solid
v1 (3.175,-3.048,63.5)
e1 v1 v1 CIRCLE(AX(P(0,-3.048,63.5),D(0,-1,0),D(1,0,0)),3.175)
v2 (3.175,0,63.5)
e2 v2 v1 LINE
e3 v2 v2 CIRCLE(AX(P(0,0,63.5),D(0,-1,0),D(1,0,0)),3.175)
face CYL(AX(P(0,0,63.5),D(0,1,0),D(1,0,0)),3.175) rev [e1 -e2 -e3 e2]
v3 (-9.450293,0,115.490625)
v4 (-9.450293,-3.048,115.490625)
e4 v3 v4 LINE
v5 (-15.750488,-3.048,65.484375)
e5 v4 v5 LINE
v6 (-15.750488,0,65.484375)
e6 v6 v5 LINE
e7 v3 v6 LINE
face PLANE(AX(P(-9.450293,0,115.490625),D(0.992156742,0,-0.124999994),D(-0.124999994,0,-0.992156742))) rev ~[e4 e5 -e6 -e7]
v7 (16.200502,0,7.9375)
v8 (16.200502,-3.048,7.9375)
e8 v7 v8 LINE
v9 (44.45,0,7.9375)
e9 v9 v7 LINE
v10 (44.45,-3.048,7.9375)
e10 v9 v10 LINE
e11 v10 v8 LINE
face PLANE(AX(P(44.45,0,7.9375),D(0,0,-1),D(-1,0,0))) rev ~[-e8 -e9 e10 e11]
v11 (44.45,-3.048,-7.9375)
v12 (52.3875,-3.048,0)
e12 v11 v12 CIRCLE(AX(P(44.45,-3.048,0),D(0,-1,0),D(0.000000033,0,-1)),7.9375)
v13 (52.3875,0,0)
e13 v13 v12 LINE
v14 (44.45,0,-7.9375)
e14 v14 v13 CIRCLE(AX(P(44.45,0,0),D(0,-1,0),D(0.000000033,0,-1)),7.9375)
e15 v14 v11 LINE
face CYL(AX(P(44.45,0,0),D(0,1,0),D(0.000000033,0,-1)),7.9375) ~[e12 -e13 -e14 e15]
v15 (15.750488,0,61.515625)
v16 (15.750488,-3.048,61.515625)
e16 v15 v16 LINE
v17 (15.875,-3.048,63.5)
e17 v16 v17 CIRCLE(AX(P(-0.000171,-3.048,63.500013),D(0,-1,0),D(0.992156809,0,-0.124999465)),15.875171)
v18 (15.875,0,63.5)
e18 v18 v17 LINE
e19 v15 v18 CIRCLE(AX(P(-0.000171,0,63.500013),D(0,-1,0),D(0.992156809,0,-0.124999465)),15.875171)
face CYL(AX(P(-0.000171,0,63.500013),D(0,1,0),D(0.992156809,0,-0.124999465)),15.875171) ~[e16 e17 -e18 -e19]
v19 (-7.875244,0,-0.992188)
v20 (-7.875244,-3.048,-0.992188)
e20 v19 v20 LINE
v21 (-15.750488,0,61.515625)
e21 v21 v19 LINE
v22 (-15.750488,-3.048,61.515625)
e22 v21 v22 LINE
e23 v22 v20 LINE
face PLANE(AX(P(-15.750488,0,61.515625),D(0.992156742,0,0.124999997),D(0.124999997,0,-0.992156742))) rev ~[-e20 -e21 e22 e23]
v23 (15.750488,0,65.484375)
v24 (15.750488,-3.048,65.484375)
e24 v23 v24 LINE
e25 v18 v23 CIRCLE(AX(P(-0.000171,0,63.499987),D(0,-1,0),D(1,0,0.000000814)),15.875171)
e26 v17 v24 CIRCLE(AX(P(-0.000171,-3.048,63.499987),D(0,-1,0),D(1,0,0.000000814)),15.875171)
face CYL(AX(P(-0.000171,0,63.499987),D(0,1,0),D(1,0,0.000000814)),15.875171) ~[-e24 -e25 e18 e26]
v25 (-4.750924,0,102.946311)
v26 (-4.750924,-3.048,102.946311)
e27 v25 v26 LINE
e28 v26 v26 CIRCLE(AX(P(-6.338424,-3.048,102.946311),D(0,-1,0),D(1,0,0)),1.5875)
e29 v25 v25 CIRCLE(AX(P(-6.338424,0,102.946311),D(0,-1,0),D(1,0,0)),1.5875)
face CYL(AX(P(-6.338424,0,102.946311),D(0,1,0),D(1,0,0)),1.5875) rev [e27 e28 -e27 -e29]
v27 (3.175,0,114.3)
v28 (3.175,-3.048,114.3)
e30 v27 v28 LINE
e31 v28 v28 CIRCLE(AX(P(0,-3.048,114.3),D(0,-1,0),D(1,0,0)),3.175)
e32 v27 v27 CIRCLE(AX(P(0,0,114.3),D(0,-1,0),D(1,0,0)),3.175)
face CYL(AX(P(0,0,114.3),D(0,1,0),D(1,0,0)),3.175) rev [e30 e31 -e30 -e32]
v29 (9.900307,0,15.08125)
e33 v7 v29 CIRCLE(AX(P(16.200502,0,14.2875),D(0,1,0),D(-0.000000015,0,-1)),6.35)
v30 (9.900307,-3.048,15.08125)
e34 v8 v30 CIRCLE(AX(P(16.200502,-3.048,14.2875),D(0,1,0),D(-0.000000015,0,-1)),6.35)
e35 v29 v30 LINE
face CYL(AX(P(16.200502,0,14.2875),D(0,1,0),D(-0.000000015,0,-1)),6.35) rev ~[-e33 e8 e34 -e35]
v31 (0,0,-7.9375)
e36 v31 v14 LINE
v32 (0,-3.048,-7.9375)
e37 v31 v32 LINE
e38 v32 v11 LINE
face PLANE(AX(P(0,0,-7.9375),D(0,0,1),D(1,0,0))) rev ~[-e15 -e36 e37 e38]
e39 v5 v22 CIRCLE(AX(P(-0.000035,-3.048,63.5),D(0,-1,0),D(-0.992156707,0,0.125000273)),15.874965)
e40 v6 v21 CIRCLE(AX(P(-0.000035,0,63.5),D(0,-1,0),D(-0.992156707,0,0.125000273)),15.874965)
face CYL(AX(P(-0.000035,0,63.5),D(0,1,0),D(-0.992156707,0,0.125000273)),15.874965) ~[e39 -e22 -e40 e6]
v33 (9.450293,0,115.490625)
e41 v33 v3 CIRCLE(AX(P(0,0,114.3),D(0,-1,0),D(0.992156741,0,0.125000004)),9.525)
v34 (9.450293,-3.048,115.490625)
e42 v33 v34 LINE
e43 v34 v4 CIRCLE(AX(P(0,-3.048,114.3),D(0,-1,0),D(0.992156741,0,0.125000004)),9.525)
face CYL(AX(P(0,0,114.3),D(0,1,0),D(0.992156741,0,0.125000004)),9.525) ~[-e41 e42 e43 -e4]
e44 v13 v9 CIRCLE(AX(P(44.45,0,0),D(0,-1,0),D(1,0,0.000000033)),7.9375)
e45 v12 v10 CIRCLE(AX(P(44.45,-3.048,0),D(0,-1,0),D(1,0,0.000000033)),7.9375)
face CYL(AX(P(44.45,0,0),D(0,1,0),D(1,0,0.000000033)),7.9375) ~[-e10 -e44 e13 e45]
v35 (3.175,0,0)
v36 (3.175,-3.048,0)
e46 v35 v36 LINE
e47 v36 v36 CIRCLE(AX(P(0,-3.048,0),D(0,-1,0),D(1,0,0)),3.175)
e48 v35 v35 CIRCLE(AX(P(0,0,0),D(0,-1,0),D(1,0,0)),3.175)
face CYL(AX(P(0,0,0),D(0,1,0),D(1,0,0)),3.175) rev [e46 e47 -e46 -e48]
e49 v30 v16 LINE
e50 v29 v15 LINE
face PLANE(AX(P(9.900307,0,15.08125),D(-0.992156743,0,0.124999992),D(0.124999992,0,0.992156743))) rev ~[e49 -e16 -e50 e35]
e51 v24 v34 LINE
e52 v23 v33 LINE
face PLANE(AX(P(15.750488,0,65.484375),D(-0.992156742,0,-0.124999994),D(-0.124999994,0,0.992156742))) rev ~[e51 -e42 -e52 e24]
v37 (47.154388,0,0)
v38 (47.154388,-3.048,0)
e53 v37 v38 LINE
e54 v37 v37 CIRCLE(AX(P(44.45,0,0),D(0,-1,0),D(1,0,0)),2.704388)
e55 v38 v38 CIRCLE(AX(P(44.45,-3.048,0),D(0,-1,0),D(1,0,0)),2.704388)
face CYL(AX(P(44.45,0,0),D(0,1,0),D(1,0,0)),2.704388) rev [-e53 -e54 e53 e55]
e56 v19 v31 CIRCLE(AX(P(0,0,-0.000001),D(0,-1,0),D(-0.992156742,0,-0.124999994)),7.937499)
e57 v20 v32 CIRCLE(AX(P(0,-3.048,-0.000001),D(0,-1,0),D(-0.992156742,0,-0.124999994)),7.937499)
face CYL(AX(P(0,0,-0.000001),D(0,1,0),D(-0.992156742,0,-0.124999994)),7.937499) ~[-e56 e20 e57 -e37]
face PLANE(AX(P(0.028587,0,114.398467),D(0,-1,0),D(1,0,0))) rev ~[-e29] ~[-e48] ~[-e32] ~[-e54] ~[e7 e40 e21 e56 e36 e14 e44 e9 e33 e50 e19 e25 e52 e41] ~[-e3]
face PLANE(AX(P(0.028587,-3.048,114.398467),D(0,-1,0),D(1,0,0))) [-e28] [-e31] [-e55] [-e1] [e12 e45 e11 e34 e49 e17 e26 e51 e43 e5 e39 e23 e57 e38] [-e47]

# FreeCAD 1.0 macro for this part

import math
import FreeCAD as App
import Part
import Sketcher

V = App.Vector
Q = App.Units.Quantity

doc = App.newDocument("Part")
body = doc.addObject("PartDesign::Body", "Body")

# Sketch on XZ plane
sketch1 = body.newObject("Sketcher::SketchObject", "Sketch")
sketch1.AttachmentSupport = (doc.getObject("XZ_Plane"), [""])
sketch1.MapMode = "FlatFace"
sketch1.addGeometry([
    Part.ArcOfCircle(Part.Circle(V(0, 114.3, 0), V(0, 0, 1), 9.525), math.radians(7.180756), math.radians(172.819244)),  # 0
    Part.LineSegment(V(-9.450293, 115.490625, 0), V(-15.750488, 65.484375, 0)),  # 1
    Part.ArcOfCircle(Part.Circle(V(-0.000035, 63.5, 0), V(0, 0, 1), 15.874965), math.radians(172.819228), math.radians(187.180772)),  # 2
    Part.LineSegment(V(-15.750488, 61.515625, 0), V(-7.875244, -0.992188, 0)),  # 3
    Part.ArcOfCircle(Part.Circle(V(0, -0.000001, 0), V(0, 0, 1), 7.937499), math.radians(-172.819245), math.radians(-89.999997)),  # 4
    Part.LineSegment(V(0, -7.9375, 0), V(44.45, -7.9375, 0)),  # 5
    Part.ArcOfCircle(Part.Circle(V(44.45, 0, 0), V(0, 0, 1), 7.9375), math.radians(-89.999998), math.radians(-0.000002)),  # 6
    Part.ArcOfCircle(Part.Circle(V(44.45, 0, 0), V(0, 0, 1), 7.9375), math.radians(0.000002), math.radians(89.999998)),  # 7
    Part.LineSegment(V(44.45, 7.9375, 0), V(16.200502, 7.9375, 0)),  # 8
    Part.ArcOfCircle(Part.Circle(V(16.200502, 14.2875, 0), V(0, 0, 1), 6.35), math.radians(172.819242), math.radians(269.999999)),  # 9
    Part.LineSegment(V(9.900307, 15.08125, 0), V(15.750488, 61.515625, 0)),  # 10
    Part.ArcOfCircle(Part.Circle(V(-0.000171, 63.500013, 0), V(0, 0, 1), 15.875171), math.radians(-7.180725), math.radians(-0.000047)),  # 11
    Part.ArcOfCircle(Part.Circle(V(-0.000171, 63.499987, 0), V(0, 0, 1), 15.875171), math.radians(0.000047), math.radians(7.180725)),  # 12
    Part.LineSegment(V(15.750488, 65.484375, 0), V(9.450293, 115.490625, 0)),  # 13
    Part.Circle(V(0, 0, 0), V(0, 0, 1), 3.175),  # 14
    Part.Circle(V(44.45, 0, 0), V(0, 0, 1), 2.704388),  # 15
    Part.Circle(V(0, 63.5, 0), V(0, 0, 1), 3.175),  # 16
    Part.Circle(V(-6.338424, 102.946311, 0), V(0, 0, 1), 1.5875),  # 17
    Part.Circle(V(0, 114.3, 0), V(0, 0, 1), 3.175),  # 18
], False)
sketch1.addConstraint([
    Sketcher.Constraint("Coincident", 0, 2, 1, 1),
    Sketcher.Constraint("Coincident", 1, 2, 2, 1),
    Sketcher.Constraint("Coincident", 2, 2, 3, 1),
    Sketcher.Constraint("Coincident", 3, 2, 4, 1),
    Sketcher.Constraint("Coincident", 4, 2, 5, 1),
    Sketcher.Constraint("Coincident", 5, 2, 6, 1),
    Sketcher.Constraint("Coincident", 6, 2, 7, 1),
    Sketcher.Constraint("Coincident", 7, 2, 8, 1),
    Sketcher.Constraint("Coincident", 8, 2, 9, 2),
    Sketcher.Constraint("Coincident", 9, 1, 10, 1),
    Sketcher.Constraint("Coincident", 10, 2, 11, 1),
    Sketcher.Constraint("Coincident", 11, 2, 12, 1),
    Sketcher.Constraint("Coincident", 12, 2, 13, 1),
    Sketcher.Constraint("Coincident", 13, 2, 0, 1),
    Sketcher.Constraint("Horizontal", 5),
    Sketcher.Constraint("Horizontal", 8),
    Sketcher.Constraint("Coincident", 4, 3, -1, 1),
    Sketcher.Constraint("Coincident", 14, 3, -1, 1),
    Sketcher.Constraint("Coincident", 7, 3, 6, 3),
    Sketcher.Constraint("Coincident", 15, 3, 6, 3),
    Sketcher.Constraint("Coincident", 18, 3, 0, 3),
    Sketcher.Constraint("PointOnObject", 0, 3, -2),
    Sketcher.Constraint("PointOnObject", 6, 3, -1),
    Sketcher.Constraint("PointOnObject", 16, 3, -2),
    Sketcher.Constraint("PointOnObject", 4, 2, -2),
    Sketcher.Constraint("PointOnObject", 6, 2, -1),
    Sketcher.Constraint("Diameter", 14, Q("0.25 in")),
    Sketcher.Constraint("Diameter", 16, Q("0.25 in")),
    Sketcher.Constraint("Diameter", 18, Q("0.25 in")),
    Sketcher.Constraint("Radius", 9, Q("0.25 in")),
    Sketcher.Constraint("Diameter", 17, Q("0.125 in")),
    Sketcher.Constraint("Radius", 0, Q("0.375 in")),
    Sketcher.Constraint("Radius", 4, Q("0.3125 in")),
    Sketcher.Constraint("DistanceY", 2, 3, 0, 3, Q("2 in")),
    Sketcher.Constraint("DistanceY", 16, 3, 0, 3, Q("2 in")),
    Sketcher.Constraint("DistanceX", 5, 1, 5, 2, Q("1.75 in")),
    Sketcher.Constraint("DistanceY", -1, 1, 0, 3, Q("4.5 in")),
    Sketcher.Constraint("DistanceY", -1, 1, 11, 2, Q("2.5 in")),
    Sketcher.Constraint("DistanceX", -1, 1, 6, 3, Q("1.75 in")),
    Sketcher.Constraint("DistanceX", -1, 1, 7, 2, Q("1.75 in")),
    Sketcher.Constraint("DistanceY", -1, 1, 0, 2, Q("4.546875 in")),
    Sketcher.Constraint("DistanceY", -1, 1, 1, 2, Q("2.578125 in")),
    Sketcher.Constraint("DistanceY", -1, 1, 2, 2, Q("2.421875 in")),
    Sketcher.Constraint("DistanceY", -1, 1, 9, 1, Q("0.59375 in")),
    Sketcher.Constraint("DistanceY", -1, 1, 10, 2, Q("2.421875 in")),
    Sketcher.Constraint("DistanceX", -1, 1, 11, 2, Q("0.625 in")),
    Sketcher.Constraint("DistanceY", -1, 1, 12, 2, Q("2.578125 in")),
    Sketcher.Constraint("DistanceY", -1, 1, 13, 2, Q("4.546875 in")),
    Sketcher.Constraint("Radius", 11, 15.875171),
    Sketcher.Constraint("Radius", 12, 15.875171),
    Sketcher.Constraint("Diameter", 15, 5.408776),
    Sketcher.Constraint("DistanceX", 8, 2, 8, 1, 28.249498),
    Sketcher.Constraint("Radius", 2, 15.874965),
    Sketcher.Constraint("DistanceY", 11, 3, 17, 3, 39.446298),
    Sketcher.Constraint("Distance", 10, 46.801451),
    Sketcher.Constraint("DistanceY", -1, 1, 17, 3, 102.946311),
    Sketcher.Constraint("DistanceX", 1, 2, -1, 1, 15.750488),
    Sketcher.Constraint("DistanceX", -1, 1, 12, 2, 15.750488),
    Sketcher.Constraint("DistanceX", 17, 3, 2, 3, 6.338389),
    Sketcher.Constraint("DistanceY", 3, 2, 6, 3, 0.992188),
])
pad1 = body.newObject("PartDesign::Pad", "Pad")
pad1.Profile = sketch1
pad1.Length = Q("0.12 in")

doc.recompute()
